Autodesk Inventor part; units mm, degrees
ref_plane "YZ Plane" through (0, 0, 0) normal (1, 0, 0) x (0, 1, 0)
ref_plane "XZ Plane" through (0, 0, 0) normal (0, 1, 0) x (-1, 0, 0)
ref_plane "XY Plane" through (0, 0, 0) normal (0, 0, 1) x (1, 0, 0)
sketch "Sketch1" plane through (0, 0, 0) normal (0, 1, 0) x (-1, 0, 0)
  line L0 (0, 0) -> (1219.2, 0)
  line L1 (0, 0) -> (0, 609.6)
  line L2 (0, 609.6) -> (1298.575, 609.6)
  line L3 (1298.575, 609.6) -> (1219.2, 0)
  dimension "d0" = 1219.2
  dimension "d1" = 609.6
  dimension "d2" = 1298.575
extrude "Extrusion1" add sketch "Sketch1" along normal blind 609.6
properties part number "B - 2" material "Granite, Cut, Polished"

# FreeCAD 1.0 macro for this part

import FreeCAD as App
import Part
import Sketcher

V = App.Vector
Q = App.Units.Quantity

doc = App.newDocument("Part")
body = doc.addObject("PartDesign::Body", "Body")

sketch1 = body.newObject("Sketcher::SketchObject", "Sketch")
sketch1.AttachmentSupport = (doc.getObject("XZ_Plane"), [""])
sketch1.MapMode = "FlatFace"
sketch1.addGeometry([
    Part.LineSegment(V(0, 610, 0), V(0, 0, 0)),
    Part.LineSegment(V(0, 0, 0), V(-1219, 0, 0)),
    Part.LineSegment(V(-1219, 0, 0), V(-1299, 610, 0)),
    Part.LineSegment(V(-1299, 610, 0), V(0, 610, 0)),
], False)
sketch1.addConstraint([
    Sketcher.Constraint("Coincident", 0, 2, 1, 1),
    Sketcher.Constraint("Coincident", 1, 2, 2, 1),
    Sketcher.Constraint("Coincident", 2, 2, 3, 1),
    Sketcher.Constraint("Coincident", 3, 2, 0, 1),
    Sketcher.Constraint("Vertical", 0),
    Sketcher.Constraint("Horizontal", 1),
    Sketcher.Constraint("Horizontal", 3),
    Sketcher.Constraint("Coincident", 0, 2, -1, 1),
    Sketcher.Constraint("DistanceX", 1, 2, 1, 1, Q("48 in")),
    Sketcher.Constraint("DistanceY", 0, 2, 0, 1, Q("24 in")),
    Sketcher.Constraint("DistanceX", 3, 1, 3, 2, Q("51.125 in")),
])
pad1 = body.newObject("PartDesign::Pad", "Pad")
pad1.Profile = sketch1
pad1.Length = Q("24 in")
pad1.Reversed = True

doc.recompute()
